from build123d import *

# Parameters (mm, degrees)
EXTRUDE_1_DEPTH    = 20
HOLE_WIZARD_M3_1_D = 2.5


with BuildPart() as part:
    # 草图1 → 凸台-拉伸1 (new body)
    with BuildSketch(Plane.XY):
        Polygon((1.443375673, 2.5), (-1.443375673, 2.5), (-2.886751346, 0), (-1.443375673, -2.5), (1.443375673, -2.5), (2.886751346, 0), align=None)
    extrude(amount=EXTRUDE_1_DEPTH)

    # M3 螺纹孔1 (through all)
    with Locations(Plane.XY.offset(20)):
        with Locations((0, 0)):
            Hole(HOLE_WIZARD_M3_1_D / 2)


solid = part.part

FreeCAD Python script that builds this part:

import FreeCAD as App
import Part
import Sketcher
from FreeCAD import Vector
Q = App.Units.Quantity

doc = App.newDocument("Part")
body = doc.addObject("PartDesign::Body", "Body")

# Sketch on XY plane
sketch1 = body.newObject("Sketcher::SketchObject", "Sketch")
sketch1.AttachmentSupport = (doc.getObject("XY_Plane"), [""])
sketch1.MapMode = "FlatFace"
sketch1.addGeometry(Part.LineSegment(Vector(1.4, 2.5, 0), Vector(-1.4, 2.5, 0)), False)
sketch1.addGeometry(Part.LineSegment(Vector(-1.4, 2.5, 0), Vector(-2.9, 0, 0)), False)
sketch1.addGeometry(Part.LineSegment(Vector(-2.9, 0, 0), Vector(-1.4, -2.5, 0)), False)
sketch1.addGeometry(Part.LineSegment(Vector(-1.4, -2.5, 0), Vector(1.4, -2.5, 0)), False)
sketch1.addGeometry(Part.LineSegment(Vector(1.4, -2.5, 0), Vector(2.9, 0, 0)), False)
sketch1.addGeometry(Part.LineSegment(Vector(2.9, 0, 0), Vector(1.4, 2.5, 0)), False)
sketch1.addConstraint(Sketcher.Constraint("Coincident", 0, 2, 1, 1))
sketch1.addConstraint(Sketcher.Constraint("Coincident", 1, 2, 2, 1))
sketch1.addConstraint(Sketcher.Constraint("Coincident", 2, 2, 3, 1))
sketch1.addConstraint(Sketcher.Constraint("Coincident", 3, 2, 4, 1))
sketch1.addConstraint(Sketcher.Constraint("Coincident", 4, 2, 5, 1))
sketch1.addConstraint(Sketcher.Constraint("Coincident", 5, 2, 0, 1))
sketch1.addConstraint(Sketcher.Constraint("Horizontal", 0))
sketch1.addConstraint(Sketcher.Constraint("Horizontal", 3))
sketch1.addConstraint(Sketcher.Constraint("Symmetric", 0, 2, 3, 2, -1, 1))
sketch1.addConstraint(Sketcher.Constraint("Symmetric", 1, 2, 4, 2, -1, 1))
sketch1.addConstraint(Sketcher.Constraint("PointOnObject", 1, 2, -1))
sketch1.addConstraint(Sketcher.Constraint("Parallel", 2, 5))
sketch1.addConstraint(Sketcher.Constraint("Vertical", 0, 2, 2, 2))
sketch1.addConstraint(Sketcher.Constraint("Angle", 1, Q("-120 deg")))
sketch1.addConstraint(Sketcher.Constraint("DistanceY", 2, 2, 0, 2, Q("5 mm")))
sketch1.addConstraint(Sketcher.Constraint("DistanceX", 0, 2, 0, 1, Q("2.886751 mm")))
pad1 = body.newObject("PartDesign::Pad", "Pad")
pad1.Profile = sketch1
pad1.Length = 20

# Sketch on XY plane
sketch2 = body.newObject("Sketcher::SketchObject", "Sketch001")
sketch2.AttachmentSupport = (doc.getObject("XY_Plane"), [""])
sketch2.MapMode = "FlatFace"
sketch2.AttachmentOffset = App.Placement(Vector(0, 0, 20), App.Rotation())
sketch2.addGeometry(Part.Circle(Vector(0, 0, 0), Vector(0, 0, 1), 1.2), False)
sketch2.addConstraint(Sketcher.Constraint("Coincident", 0, 3, -1, 1))
sketch2.addConstraint(Sketcher.Constraint("Diameter", 0, Q("2.5 mm")))
doc.recompute()
hole = body.newObject("PartDesign::Hole", "Hole")
hole.Profile = sketch2
hole.ThreadType = "None"
hole.Diameter = 2.5
hole.DepthType = "ThroughAll"

doc.recompute()
